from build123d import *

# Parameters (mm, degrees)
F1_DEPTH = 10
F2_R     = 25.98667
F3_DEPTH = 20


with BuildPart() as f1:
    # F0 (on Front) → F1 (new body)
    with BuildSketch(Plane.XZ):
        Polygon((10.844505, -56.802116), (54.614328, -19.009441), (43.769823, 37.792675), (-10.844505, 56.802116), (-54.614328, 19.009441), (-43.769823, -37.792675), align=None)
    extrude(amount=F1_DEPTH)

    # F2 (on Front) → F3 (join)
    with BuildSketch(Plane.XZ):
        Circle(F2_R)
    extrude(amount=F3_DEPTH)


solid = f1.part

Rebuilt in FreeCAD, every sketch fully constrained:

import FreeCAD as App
import Part
import Sketcher


def add_polygon(sketch, points):
    """Adds a closed chain of lines whose ends are joined by coincident constraints."""
    first, n = sketch.GeometryCount, len(points)
    for a, b in zip(points, points[1:] + points[:1]):
        sketch.addGeometry(Part.LineSegment(App.Vector(*a, 0), App.Vector(*b, 0)), False)
    for i in range(n):
        sketch.addConstraint(Sketcher.Constraint("Coincident", first + i, 2, first + (i + 1) % n, 1))

doc = App.newDocument("Part")
body = doc.addObject("PartDesign::Body", "Body")

# Sketch on XZ plane
sketch1 = body.newObject("Sketcher::SketchObject", "Sketch")
sketch1.AttachmentSupport = (doc.getObject("XZ_Plane"), [""])
sketch1.MapMode = "FlatFace"
add_polygon(sketch1, [(10.844505, -56.802116), (54.614328, -19.009441), (43.769823, 37.792675), (-10.844505, 56.802116), (-54.614328, 19.009441), (-43.769823, -37.792675)])  # lines 0-5
sketch1.addConstraint([
    Sketcher.Constraint("Symmetric", 0, 2, 3, 2, -1, 1),
    Sketcher.Constraint("Symmetric", 1, 2, 4, 2, -1, 1),
    Sketcher.Constraint("Symmetric", 2, 2, 5, 2, -1, 1),
    Sketcher.Constraint("Equal", 0, 1),
    Sketcher.Constraint("Equal", 1, 2),
    Sketcher.Constraint("DistanceY", 0, 2, -1, 1, 19.009441),
    Sketcher.Constraint("DistanceY", 1, 2, 2, 2, 19.009441),
    Sketcher.Constraint("DistanceX", 3, 2, 1, 2, 98.384151),
    Sketcher.Constraint("DistanceX", 4, 2, 2, 2, 32.925318),
])
pad1 = body.newObject("PartDesign::Pad", "Pad")
pad1.Profile = sketch1
pad1.Length = 10

# Sketch on XZ plane
sketch2 = body.newObject("Sketcher::SketchObject", "Sketch001")
sketch2.AttachmentSupport = (doc.getObject("XZ_Plane"), [""])
sketch2.MapMode = "FlatFace"
sketch2.addGeometry(Part.Circle(App.Vector(0, 0, 0), App.Vector(0, 0, 1), 25.98667), False)
sketch2.addConstraint([
    Sketcher.Constraint("Coincident", 0, 3, -1, 1),
    Sketcher.Constraint("Diameter", 0, 51.97334),
])
pad2 = body.newObject("PartDesign::Pad", "Pad001")
pad2.Profile = sketch2
pad2.Length = 20

doc.recompute()
